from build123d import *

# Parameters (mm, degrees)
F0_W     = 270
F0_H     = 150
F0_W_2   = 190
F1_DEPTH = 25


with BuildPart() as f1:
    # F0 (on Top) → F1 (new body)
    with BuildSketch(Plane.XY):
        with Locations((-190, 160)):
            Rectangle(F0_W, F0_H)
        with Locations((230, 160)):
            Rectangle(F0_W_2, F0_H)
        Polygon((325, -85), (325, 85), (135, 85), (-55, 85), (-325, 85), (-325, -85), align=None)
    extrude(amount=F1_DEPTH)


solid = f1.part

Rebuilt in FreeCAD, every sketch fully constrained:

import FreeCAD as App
import Part
import Sketcher


def add_polygon(sketch, points):
    """Adds a closed chain of lines whose ends are joined by coincident constraints."""
    first, n = sketch.GeometryCount, len(points)
    for a, b in zip(points, points[1:] + points[:1]):
        sketch.addGeometry(Part.LineSegment(App.Vector(*a, 0), App.Vector(*b, 0)), False)
    for i in range(n):
        sketch.addConstraint(Sketcher.Constraint("Coincident", first + i, 2, first + (i + 1) % n, 1))

doc = App.newDocument("Part")
body = doc.addObject("PartDesign::Body", "Body")

# Sketch on XY plane
sketch1 = body.newObject("Sketcher::SketchObject", "Sketch")
sketch1.AttachmentSupport = (doc.getObject("XY_Plane"), [""])
sketch1.MapMode = "FlatFace"
add_polygon(sketch1, [(-325, 235), (-325, -85), (325, -85), (325, 235), (135, 235), (135, 85), (-55, 85), (-55, 235)])  # lines 0-7
sketch1.addConstraint([
    Sketcher.Constraint("Vertical", 0),
    Sketcher.Constraint("Horizontal", 1),
    Sketcher.Constraint("Vertical", 2),
    Sketcher.Constraint("Horizontal", 3),
    Sketcher.Constraint("Vertical", 4),
    Sketcher.Constraint("Horizontal", 5),
    Sketcher.Constraint("Vertical", 6),
    Sketcher.Constraint("Horizontal", 7),
    Sketcher.Constraint("Symmetric", 2, 2, 7, 2, -2),
    Sketcher.Constraint("Equal", 3, 5),
    Sketcher.Constraint("DistanceX", 1, 1, 1, 2, 650.0),
    Sketcher.Constraint("DistanceX", 3, 2, 3, 1, 190.0),
    Sketcher.Constraint("DistanceY", 0, 2, 0, 1, 320.0),
    Sketcher.Constraint("DistanceY", 4, 2, 4, 1, 150.0),
    Sketcher.Constraint("DistanceY", 0, 2, -1, 1, 85.0),
])
pad1 = body.newObject("PartDesign::Pad", "Pad")
pad1.Profile = sketch1
pad1.Length = 25

doc.recompute()
